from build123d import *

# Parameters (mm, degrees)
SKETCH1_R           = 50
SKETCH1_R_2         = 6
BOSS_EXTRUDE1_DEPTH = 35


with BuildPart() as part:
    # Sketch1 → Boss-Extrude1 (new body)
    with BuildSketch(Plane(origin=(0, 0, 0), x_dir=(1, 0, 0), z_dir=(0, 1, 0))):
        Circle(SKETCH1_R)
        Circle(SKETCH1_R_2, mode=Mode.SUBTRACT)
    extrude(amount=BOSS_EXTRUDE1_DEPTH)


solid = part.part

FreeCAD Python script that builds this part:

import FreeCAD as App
import Part
import Sketcher
from FreeCAD import Vector

doc = App.newDocument("Part")
body = doc.addObject("PartDesign::Body", "Body")

# Sketch on XZ plane
sketch1 = body.newObject("Sketcher::SketchObject", "Sketch")
sketch1.AttachmentSupport = (doc.getObject("XZ_Plane"), [""])
sketch1.MapMode = "FlatFace"
sketch1.addGeometry([
    Part.Circle(Vector(0, 0, 0), Vector(0, 0, 1), 50),
    Part.Circle(Vector(0, 0, 0), Vector(0, 0, 1), 6),
], False)
sketch1.addConstraint([
    Sketcher.Constraint("Coincident", 0, 3, -1, 1),
    Sketcher.Constraint("Coincident", 1, 3, -1, 1),
    Sketcher.Constraint("Diameter", 0, 100.0),
    Sketcher.Constraint("Diameter", 1, 12.0),
])
pad1 = body.newObject("PartDesign::Pad", "Pad")
pad1.Profile = sketch1
pad1.Length = 35
pad1.Reversed = True

doc.recompute()
